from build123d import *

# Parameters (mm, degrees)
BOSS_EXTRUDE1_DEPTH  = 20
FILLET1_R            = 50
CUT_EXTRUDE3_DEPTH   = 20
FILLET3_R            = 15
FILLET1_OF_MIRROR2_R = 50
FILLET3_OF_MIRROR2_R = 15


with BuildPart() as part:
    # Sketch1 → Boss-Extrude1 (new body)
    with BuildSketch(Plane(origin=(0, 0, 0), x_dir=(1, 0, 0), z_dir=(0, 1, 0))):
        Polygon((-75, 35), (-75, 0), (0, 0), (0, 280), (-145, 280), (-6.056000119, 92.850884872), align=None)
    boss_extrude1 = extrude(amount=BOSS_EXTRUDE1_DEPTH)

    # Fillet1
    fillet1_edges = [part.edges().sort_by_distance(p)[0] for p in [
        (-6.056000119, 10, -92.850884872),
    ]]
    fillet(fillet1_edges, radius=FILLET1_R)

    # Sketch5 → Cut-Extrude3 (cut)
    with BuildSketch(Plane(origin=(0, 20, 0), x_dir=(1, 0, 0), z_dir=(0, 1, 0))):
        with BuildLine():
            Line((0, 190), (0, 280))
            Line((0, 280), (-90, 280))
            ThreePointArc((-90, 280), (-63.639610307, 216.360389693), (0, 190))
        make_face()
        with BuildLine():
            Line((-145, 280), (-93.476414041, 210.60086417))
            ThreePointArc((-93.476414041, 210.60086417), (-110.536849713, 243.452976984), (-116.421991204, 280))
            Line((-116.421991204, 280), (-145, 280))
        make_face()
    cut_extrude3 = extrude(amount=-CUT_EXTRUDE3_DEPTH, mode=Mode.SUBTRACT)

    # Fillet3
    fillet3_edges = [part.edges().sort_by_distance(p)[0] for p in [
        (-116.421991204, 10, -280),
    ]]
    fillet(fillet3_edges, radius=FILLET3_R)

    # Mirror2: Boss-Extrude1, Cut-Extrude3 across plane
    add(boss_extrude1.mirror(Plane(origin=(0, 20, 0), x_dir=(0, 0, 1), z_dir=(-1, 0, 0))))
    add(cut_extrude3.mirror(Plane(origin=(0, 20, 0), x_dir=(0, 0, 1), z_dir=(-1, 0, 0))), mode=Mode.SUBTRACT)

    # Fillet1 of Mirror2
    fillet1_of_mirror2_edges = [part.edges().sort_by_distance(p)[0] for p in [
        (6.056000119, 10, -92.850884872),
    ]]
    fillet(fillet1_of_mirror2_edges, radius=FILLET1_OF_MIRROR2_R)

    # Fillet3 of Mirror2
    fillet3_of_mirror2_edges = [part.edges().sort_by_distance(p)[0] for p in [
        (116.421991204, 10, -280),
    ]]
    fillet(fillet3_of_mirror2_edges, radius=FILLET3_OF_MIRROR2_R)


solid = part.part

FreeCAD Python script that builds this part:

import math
import FreeCAD as App
import Part
import Sketcher
Q = App.Units.Quantity


def edges_at(feature, points):
    """Names of the edges that pass closest to the given points."""
    edges = feature.Shape.Edges
    near = lambda p: min(range(len(edges)), key=lambda i: edges[i].distToShape(Part.Vertex(*p))[0])
    return sorted({f"Edge{near(p) + 1}" for p in points})


def add_polygon(sketch, points):
    """Adds a closed chain of lines whose ends are joined by coincident constraints."""
    first, n = sketch.GeometryCount, len(points)
    for a, b in zip(points, points[1:] + points[:1]):
        sketch.addGeometry(Part.LineSegment(App.Vector(*a, 0), App.Vector(*b, 0)), False)
    for i in range(n):
        sketch.addConstraint(Sketcher.Constraint("Coincident", first + i, 2, first + (i + 1) % n, 1))

doc = App.newDocument("Part")
body = doc.addObject("PartDesign::Body", "Body")

# Sketch on XZ plane
sketch1 = doc.addObject("Sketcher::SketchObject", "Sketch")
body.addObject(sketch1)
sketch1.AttachmentSupport = (doc.XZ_Plane, [""])
sketch1.MapMode = "FlatFace"
add_polygon(sketch1, [(-75, -35), (-75, 0), (0, 0), (0, -280), (-145, -280), (-6, -93)])  # lines 0-5
sketch1.addConstraint([
    Sketcher.Constraint("Vertical", 0),
    Sketcher.Constraint("Horizontal", 1),
    Sketcher.Constraint("Vertical", 2),
    Sketcher.Constraint("Horizontal", 3),
    Sketcher.Constraint("Coincident", 1, 2, -1, 1),
    Sketcher.Constraint("DistanceX", 1, 1, 1, 2, Q("75 mm")),
    Sketcher.Constraint("DistanceX", 3, 2, 3, 1, Q("145 mm")),
    Sketcher.Constraint("DistanceY", 0, 1, 0, 2, Q("35 mm")),
    Sketcher.Constraint("DistanceY", 2, 2, 2, 1, Q("280 mm")),
    Sketcher.Constraint("Angle", 5, Q("140 deg")),
    Sketcher.Constraint("Distance", 5, Q("90 mm")),
])
pad1 = doc.addObject("PartDesign::Pad", "Pad")
body.addObject(pad1)
pad1.Profile = sketch1
pad1.Length = 20
pad1.Reversed = True
doc.recompute()

fillet = doc.addObject("PartDesign::Fillet", "Fillet")
body.addObject(fillet)
fillet.Base = (pad1, edges_at(pad1, [(-6.056, 10, -92.851)]))
fillet.Radius = 50

# Sketch on XZ plane
sketch2 = doc.addObject("Sketcher::SketchObject", "Sketch001")
body.addObject(sketch2)
sketch2.AttachmentSupport = (doc.XZ_Plane, [""])
sketch2.MapMode = "FlatFace"
sketch2.AttachmentOffset = App.Placement(App.Vector(0, 0, -20), App.Rotation())
sketch2.addGeometry([
    Part.LineSegment(App.Vector(0, -190, 0), App.Vector(0, -280, 0)),  # 0
    Part.LineSegment(App.Vector(0, -280, 0), App.Vector(-90, -280, 0)),  # 1
    Part.ArcOfCircle(Part.Circle(App.Vector(0, -280, 0), App.Vector(0, 0, 1), 90), math.radians(90), math.radians(180)),  # 2
    Part.LineSegment(App.Vector(-145, -280, 0), App.Vector(-93, -211, 0)),  # 3
    Part.ArcOfCircle(Part.Circle(App.Vector(0, -280, 0), App.Vector(0, 0, 1), 116), math.radians(143), math.radians(180)),  # 4
    Part.LineSegment(App.Vector(-116, -280, 0), App.Vector(-145, -280, 0)),  # 5
], False)
sketch2.addConstraint([
    Sketcher.Constraint("Coincident", 0, 2, 1, 1),
    Sketcher.Constraint("Coincident", 1, 2, 2, 2),
    Sketcher.Constraint("Coincident", 2, 1, 0, 1),
    Sketcher.Constraint("Tangent", 3, 2, 4, 1),
    Sketcher.Constraint("Coincident", 4, 2, 5, 1),
    Sketcher.Constraint("Coincident", 5, 2, 3, 1),
    Sketcher.Constraint("Vertical", 0),
    Sketcher.Constraint("Horizontal", 1),
    Sketcher.Constraint("Horizontal", 5),
    Sketcher.Constraint("Coincident", 4, 3, 2, 3),
    Sketcher.Constraint("Coincident", 0, 2, 2, 3),
    Sketcher.Constraint("PointOnObject", 2, 3, -2),
    Sketcher.Constraint("Horizontal", 1, 2, 4, 2),
    Sketcher.Constraint("Radius", 2, Q("90 mm")),
    Sketcher.Constraint("DistanceY", 2, 3, -1, 1, Q("280 mm")),
    Sketcher.Constraint("DistanceX", 5, 2, -1, 1, Q("145 mm")),
    Sketcher.Constraint("Radius", 4, Q("116.421991 mm")),
])
pocket1 = doc.addObject("PartDesign::Pocket", "Pocket")
body.addObject(pocket1)
pocket1.Profile = sketch2
pocket1.Length = 20
pocket1.Reversed = True
doc.recompute()

fillet2 = doc.addObject("PartDesign::Fillet", "Fillet001")
body.addObject(fillet2)
fillet2.Base = (pocket1, edges_at(pocket1, [(-116.422, 10, -280)]))
fillet2.Radius = 15
doc.recompute()

mirrored = doc.addObject("PartDesign::Mirrored", "Mirrored")
body.addObject(mirrored)
mirrored.Originals = [pad1, pocket1]
mirrored.MirrorPlane = (doc.YZ_Plane, [""])
body.Tip = mirrored
doc.recompute()

fillet3 = doc.addObject("PartDesign::Fillet", "Fillet002")
body.addObject(fillet3)
fillet3.Base = (mirrored, edges_at(mirrored, [(6.056, 10, -92.851)]))
fillet3.Radius = 50
doc.recompute()

fillet4 = doc.addObject("PartDesign::Fillet", "Fillet003")
body.addObject(fillet4)
fillet4.Base = (fillet3, edges_at(fillet3, [(116.422, 10, -280)]))
fillet4.Radius = 15

doc.recompute()
